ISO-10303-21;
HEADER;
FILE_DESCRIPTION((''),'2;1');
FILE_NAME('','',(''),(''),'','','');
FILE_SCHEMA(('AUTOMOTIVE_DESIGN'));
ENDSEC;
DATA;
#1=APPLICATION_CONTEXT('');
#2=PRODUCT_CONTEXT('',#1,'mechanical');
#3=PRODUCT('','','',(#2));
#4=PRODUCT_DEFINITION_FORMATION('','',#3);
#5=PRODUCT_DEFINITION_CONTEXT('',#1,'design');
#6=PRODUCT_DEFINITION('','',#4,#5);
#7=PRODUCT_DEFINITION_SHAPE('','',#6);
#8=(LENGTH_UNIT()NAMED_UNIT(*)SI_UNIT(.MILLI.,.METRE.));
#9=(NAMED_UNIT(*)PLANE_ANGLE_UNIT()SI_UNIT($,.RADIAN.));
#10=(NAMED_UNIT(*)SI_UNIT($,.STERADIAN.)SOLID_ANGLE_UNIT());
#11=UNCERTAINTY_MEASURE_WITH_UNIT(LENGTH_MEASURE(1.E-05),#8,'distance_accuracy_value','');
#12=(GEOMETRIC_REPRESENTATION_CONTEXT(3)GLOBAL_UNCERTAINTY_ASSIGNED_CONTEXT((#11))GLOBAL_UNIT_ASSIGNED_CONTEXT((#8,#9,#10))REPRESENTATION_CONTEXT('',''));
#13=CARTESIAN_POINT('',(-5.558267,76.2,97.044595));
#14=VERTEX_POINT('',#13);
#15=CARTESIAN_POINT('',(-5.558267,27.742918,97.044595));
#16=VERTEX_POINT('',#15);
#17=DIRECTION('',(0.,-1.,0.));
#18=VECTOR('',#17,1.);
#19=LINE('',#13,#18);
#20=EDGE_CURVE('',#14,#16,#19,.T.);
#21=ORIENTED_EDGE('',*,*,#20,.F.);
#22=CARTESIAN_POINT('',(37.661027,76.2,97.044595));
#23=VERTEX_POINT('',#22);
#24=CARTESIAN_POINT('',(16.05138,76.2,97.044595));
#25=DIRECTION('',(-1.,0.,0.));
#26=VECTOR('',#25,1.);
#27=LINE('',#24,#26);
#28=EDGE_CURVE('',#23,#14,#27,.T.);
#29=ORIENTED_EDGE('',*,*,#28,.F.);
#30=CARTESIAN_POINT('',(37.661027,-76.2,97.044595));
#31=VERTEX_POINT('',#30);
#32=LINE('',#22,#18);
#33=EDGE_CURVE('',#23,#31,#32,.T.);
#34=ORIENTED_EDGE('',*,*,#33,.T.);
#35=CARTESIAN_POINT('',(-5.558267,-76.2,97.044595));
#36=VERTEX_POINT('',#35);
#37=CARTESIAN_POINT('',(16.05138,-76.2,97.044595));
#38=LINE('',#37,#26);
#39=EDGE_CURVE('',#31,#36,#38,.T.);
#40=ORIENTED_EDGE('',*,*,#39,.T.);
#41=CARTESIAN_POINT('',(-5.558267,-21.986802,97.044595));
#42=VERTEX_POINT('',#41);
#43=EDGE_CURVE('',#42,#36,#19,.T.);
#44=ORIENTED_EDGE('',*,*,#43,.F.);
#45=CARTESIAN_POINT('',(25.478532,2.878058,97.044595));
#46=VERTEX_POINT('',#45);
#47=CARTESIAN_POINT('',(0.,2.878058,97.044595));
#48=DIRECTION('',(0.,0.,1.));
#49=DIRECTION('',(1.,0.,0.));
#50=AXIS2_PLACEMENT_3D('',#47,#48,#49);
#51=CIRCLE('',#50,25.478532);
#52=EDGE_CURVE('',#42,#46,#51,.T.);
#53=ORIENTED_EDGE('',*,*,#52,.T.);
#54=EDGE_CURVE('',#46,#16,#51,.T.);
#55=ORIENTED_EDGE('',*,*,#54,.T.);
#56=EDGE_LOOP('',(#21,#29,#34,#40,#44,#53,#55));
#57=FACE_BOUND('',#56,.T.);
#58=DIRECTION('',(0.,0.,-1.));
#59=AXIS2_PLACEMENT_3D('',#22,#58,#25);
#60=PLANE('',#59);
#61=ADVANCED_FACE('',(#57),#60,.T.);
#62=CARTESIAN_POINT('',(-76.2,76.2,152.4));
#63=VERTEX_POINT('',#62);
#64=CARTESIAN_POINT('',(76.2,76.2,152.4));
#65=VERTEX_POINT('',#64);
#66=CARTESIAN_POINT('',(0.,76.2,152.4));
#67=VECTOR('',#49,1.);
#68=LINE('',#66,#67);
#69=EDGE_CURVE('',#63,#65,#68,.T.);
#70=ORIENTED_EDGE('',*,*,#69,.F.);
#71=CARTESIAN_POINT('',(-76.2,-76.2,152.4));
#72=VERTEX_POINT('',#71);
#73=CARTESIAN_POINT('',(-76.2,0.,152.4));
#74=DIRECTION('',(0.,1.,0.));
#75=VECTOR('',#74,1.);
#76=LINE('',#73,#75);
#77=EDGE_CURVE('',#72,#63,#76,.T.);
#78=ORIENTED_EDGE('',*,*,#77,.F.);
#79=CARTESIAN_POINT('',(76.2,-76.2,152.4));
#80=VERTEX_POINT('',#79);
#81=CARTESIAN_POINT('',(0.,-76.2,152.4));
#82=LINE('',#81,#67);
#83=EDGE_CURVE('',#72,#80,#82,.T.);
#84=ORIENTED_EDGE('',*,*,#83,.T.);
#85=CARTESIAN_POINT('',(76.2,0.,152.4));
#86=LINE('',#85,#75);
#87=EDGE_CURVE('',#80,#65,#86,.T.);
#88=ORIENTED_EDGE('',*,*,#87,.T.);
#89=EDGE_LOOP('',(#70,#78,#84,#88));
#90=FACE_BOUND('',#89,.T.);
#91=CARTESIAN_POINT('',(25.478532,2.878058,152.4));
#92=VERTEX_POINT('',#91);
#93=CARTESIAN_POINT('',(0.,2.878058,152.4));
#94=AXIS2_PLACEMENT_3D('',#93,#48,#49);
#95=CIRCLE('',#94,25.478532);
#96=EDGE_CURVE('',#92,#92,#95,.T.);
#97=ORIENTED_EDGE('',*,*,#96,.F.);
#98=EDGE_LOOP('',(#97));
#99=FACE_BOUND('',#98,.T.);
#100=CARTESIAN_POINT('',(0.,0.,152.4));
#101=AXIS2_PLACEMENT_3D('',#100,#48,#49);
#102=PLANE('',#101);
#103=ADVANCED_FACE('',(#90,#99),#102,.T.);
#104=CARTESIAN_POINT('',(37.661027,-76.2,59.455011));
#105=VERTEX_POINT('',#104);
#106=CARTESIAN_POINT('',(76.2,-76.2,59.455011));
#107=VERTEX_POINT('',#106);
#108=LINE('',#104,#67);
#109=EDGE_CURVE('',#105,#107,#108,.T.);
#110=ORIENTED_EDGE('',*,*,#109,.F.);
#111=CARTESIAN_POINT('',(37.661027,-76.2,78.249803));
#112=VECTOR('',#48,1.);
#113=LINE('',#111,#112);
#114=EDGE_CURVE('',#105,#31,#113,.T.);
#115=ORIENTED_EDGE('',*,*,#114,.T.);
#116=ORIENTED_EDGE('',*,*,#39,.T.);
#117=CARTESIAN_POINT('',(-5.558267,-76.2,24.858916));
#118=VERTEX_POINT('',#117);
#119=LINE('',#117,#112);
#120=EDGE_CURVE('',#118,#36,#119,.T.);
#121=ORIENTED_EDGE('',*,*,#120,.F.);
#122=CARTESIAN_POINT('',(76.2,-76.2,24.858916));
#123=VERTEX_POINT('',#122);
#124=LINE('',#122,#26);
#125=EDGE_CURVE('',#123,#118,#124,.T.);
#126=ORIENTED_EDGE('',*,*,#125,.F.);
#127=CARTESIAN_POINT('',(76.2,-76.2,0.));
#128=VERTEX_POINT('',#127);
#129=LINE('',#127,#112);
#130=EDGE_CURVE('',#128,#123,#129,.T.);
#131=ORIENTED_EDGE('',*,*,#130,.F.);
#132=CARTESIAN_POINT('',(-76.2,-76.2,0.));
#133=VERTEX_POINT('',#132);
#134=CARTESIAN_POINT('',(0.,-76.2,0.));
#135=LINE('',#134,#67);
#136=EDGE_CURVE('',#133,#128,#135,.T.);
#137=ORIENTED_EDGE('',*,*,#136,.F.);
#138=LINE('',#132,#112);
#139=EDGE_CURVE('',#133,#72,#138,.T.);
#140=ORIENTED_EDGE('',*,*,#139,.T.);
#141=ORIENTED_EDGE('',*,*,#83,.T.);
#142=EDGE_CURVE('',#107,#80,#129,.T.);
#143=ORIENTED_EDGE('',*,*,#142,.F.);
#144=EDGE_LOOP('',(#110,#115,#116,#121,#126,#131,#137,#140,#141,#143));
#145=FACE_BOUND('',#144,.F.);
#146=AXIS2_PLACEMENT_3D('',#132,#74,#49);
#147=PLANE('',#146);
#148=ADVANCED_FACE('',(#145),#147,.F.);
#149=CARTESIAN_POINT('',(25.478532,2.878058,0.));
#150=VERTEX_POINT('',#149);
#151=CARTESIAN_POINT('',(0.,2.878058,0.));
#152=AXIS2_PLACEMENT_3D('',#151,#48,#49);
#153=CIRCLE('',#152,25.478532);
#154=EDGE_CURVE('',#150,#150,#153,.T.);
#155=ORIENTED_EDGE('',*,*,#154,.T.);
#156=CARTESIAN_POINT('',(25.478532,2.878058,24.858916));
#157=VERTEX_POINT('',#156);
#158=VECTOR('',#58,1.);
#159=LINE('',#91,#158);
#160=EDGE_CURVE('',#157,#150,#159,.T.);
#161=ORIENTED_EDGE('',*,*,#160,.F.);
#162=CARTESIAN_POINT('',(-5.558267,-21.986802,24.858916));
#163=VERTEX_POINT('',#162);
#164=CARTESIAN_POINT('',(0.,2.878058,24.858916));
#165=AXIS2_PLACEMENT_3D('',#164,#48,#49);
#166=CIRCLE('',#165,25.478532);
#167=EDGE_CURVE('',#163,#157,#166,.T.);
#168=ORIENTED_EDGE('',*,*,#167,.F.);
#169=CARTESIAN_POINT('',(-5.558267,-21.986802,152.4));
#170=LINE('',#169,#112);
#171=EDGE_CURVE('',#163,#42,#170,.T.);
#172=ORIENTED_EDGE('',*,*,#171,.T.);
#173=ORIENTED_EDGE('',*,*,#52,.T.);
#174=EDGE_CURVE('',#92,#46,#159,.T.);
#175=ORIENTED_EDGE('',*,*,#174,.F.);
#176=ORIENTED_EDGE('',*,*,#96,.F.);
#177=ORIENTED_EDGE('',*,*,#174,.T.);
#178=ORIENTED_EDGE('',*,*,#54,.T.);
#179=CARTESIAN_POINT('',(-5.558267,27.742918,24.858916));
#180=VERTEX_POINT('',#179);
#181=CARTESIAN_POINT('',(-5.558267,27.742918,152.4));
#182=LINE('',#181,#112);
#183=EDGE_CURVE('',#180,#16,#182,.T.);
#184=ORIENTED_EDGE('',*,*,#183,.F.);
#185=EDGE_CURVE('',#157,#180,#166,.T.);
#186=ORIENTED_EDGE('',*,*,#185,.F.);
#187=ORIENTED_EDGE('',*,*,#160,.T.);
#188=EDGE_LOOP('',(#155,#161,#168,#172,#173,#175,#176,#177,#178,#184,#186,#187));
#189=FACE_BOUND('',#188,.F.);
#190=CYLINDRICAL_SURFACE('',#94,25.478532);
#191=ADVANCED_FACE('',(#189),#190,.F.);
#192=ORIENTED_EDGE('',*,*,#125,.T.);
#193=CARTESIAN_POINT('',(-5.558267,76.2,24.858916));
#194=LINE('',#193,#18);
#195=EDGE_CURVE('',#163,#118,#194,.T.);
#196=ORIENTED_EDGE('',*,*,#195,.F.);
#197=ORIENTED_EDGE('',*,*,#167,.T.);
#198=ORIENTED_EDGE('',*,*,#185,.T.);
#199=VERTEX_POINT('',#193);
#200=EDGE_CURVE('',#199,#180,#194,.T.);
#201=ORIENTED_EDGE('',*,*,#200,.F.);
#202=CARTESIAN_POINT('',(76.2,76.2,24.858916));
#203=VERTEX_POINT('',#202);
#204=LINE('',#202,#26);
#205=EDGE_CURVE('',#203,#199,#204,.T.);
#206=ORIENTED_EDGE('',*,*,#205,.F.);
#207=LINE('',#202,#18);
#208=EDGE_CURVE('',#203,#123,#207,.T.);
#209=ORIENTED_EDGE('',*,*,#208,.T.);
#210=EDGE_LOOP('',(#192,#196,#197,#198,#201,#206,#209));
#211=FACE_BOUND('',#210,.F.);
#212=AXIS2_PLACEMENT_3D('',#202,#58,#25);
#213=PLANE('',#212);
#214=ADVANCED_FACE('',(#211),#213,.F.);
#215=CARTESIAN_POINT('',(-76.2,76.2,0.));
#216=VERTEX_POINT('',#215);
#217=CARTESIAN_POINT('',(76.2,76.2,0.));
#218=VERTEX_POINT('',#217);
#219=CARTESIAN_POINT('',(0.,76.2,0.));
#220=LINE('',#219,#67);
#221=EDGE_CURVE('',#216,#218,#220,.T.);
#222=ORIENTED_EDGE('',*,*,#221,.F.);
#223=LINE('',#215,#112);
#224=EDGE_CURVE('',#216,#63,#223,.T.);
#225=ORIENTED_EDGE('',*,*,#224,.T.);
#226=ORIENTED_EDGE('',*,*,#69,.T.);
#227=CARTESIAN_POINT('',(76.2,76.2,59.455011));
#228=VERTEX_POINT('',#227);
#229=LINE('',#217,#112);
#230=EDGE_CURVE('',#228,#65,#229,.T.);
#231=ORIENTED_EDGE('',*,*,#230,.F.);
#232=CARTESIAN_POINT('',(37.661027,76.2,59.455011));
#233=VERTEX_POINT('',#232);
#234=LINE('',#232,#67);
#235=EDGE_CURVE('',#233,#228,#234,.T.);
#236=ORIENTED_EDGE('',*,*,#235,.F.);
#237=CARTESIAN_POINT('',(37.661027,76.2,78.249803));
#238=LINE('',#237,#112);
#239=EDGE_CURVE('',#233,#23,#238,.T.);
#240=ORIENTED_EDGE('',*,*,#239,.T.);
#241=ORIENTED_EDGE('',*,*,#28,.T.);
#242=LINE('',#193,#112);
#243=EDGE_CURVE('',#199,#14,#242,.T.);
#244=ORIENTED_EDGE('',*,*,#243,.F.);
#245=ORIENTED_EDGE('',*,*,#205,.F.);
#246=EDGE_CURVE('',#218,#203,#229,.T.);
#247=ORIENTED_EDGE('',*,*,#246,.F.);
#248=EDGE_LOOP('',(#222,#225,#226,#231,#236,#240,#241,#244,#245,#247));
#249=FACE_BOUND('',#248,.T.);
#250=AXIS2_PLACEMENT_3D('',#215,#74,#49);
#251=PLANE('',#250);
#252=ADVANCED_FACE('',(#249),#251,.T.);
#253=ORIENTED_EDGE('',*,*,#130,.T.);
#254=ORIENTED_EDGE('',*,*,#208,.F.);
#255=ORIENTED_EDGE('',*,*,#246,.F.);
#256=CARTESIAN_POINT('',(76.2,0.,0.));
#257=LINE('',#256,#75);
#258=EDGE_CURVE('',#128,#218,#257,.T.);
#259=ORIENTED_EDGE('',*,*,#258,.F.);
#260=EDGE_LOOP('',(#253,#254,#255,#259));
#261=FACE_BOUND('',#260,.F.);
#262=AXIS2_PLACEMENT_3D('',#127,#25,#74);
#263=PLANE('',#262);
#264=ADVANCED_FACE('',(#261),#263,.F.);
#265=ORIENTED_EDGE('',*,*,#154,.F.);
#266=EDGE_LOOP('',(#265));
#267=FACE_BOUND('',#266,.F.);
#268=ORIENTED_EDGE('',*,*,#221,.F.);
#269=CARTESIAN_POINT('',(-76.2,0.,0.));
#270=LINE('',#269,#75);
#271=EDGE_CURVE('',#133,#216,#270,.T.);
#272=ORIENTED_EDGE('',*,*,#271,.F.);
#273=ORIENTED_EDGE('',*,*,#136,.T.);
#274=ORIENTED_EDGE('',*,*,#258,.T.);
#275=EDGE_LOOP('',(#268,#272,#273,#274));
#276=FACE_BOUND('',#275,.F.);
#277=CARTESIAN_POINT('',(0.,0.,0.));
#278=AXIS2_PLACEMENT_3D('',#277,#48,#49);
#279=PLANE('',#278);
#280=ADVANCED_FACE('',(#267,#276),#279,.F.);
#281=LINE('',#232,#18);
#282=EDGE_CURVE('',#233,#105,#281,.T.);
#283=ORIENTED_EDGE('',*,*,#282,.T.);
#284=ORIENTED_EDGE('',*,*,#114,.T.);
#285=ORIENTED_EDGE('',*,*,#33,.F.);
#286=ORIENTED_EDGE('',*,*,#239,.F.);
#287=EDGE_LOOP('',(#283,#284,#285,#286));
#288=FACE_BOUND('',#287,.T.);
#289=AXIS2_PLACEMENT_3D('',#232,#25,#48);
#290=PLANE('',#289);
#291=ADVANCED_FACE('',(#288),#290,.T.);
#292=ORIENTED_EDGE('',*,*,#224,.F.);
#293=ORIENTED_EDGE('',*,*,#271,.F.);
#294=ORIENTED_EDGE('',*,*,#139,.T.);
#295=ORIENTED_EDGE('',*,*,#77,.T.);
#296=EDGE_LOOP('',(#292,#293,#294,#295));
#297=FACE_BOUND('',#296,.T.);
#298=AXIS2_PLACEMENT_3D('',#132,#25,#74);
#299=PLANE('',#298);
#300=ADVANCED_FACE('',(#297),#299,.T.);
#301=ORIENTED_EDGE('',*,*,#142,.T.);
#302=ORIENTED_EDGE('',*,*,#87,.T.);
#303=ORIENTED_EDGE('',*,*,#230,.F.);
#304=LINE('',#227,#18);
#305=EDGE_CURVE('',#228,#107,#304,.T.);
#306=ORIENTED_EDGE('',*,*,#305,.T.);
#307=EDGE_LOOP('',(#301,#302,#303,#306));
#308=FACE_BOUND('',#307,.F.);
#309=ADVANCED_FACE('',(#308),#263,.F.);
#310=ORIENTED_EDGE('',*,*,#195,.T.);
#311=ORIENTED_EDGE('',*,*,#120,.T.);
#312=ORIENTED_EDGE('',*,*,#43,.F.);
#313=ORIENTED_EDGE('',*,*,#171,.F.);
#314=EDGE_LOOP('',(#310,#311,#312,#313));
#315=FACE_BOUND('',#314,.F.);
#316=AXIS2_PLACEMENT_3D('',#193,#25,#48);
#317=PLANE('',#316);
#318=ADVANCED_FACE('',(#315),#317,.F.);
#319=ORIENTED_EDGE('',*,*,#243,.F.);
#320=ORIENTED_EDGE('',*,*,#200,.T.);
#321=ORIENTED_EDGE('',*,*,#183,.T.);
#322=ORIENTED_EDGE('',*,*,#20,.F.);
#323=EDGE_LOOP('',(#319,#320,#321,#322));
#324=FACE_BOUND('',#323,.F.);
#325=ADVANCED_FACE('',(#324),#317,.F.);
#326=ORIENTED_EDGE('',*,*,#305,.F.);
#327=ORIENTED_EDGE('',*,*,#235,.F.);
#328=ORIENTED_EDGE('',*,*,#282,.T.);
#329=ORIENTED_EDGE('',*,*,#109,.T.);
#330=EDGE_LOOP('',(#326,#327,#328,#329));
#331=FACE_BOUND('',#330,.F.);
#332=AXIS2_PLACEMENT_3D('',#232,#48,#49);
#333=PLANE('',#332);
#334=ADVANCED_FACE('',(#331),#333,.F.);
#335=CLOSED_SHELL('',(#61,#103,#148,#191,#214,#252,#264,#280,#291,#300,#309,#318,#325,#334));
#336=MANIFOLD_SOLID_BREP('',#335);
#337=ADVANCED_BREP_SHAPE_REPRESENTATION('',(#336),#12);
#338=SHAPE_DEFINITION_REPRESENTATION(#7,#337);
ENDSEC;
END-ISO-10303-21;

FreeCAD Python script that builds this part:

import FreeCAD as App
import Part
import Sketcher

V = App.Vector
Q = App.Units.Quantity


def add_polygon(sketch, points):
    """Adds a closed chain of lines whose ends are joined by coincident constraints."""
    first, n = sketch.GeometryCount, len(points)
    for a, b in zip(points, points[1:] + points[:1]):
        sketch.addGeometry(Part.LineSegment(App.Vector(*a, 0), App.Vector(*b, 0)), False)
    for i in range(n):
        sketch.addConstraint(Sketcher.Constraint("Coincident", first + i, 2, first + (i + 1) % n, 1))

doc = App.newDocument("Part")
params = doc.addObject("Spreadsheet::Sheet", "Params")
for row, (alias, value) in enumerate([
    ("sketch1_width", "6 in"),
    ("pad1_length", "6 in"),
    ("pocket1_length", "6 in"),
    ("pocket2_length", "6 in"),
], start=1):
    params.set(f"A{row}", alias)
    params.set(f"B{row}", "=" + value)
    params.setAlias(f"B{row}", alias)

body = doc.addObject("PartDesign::Body", "Body")

sketch1 = doc.addObject("Sketcher::SketchObject", "Sketch")
body.addObject(sketch1)
sketch1.AttachmentSupport = (doc.XY_Plane, [""])
sketch1.MapMode = "FlatFace"
add_polygon(sketch1, [(-76, 76), (-76, -76), (76, -76), (76, 76)])
sketch1.addConstraint([
    Sketcher.Constraint("Vertical", 0),
    Sketcher.Constraint("Horizontal", 1),
    Sketcher.Constraint("Vertical", 2),
    Sketcher.Constraint("Horizontal", 3),
    Sketcher.Constraint("Symmetric", 0, 2, 2, 2, -1, 1),
    Sketcher.Constraint("Equal", 3, 0),
    Sketcher.Constraint("DistanceX", 1, 1, 1, 2, Q("6 in")),
])
sketch1.setExpression("Constraints[10]", "Params.sketch1_width")
pad1 = doc.addObject("PartDesign::Pad", "Pad")
body.addObject(pad1)
pad1.Profile = sketch1
pad1.setExpression("Length", "Params.pad1_length")

sketch2 = doc.addObject("Sketcher::SketchObject", "Sketch001")
body.addObject(sketch2)
sketch2.AttachmentSupport = (doc.XY_Plane, [""])
sketch2.MapMode = "FlatFace"
sketch2.AttachmentOffset = App.Placement(V(0, 0, 6 * 25.4), App.Rotation())
sketch2.addGeometry(Part.Circle(V(0, 3, 0), V(0, 0, 1), 25), False)
sketch2.addConstraint([
    Sketcher.Constraint("PointOnObject", 0, 3, -2),
    Sketcher.Constraint("Diameter", 0, Q("50.957064 mm")),
    Sketcher.Constraint("DistanceY", -1, 1, 0, 3, Q("2.878058 mm")),
])
pocket1 = doc.addObject("PartDesign::Pocket", "Pocket")
body.addObject(pocket1)
pocket1.Profile = sketch2
pocket1.setExpression("Length", "Params.pocket1_length")

sketch3 = doc.addObject("Sketcher::SketchObject", "Sketch002")
body.addObject(sketch3)
sketch3.AttachmentSupport = (doc.XZ_Plane, [""])
sketch3.MapMode = "FlatFace"
sketch3.AttachmentOffset = App.Placement(V(0, 0, -3 * 25.4), App.Rotation())
add_polygon(sketch3, [(38, 97), (38, 59), (76, 59), (76, 25), (-6, 25), (-6, 97)])
sketch3.addConstraint([
    Sketcher.Constraint("Vertical", 0),
    Sketcher.Constraint("Horizontal", 1),
    Sketcher.Constraint("Vertical", 2),
    Sketcher.Constraint("Horizontal", 3),
    Sketcher.Constraint("Vertical", 4),
    Sketcher.Constraint("Horizontal", 5),
    Sketcher.Constraint("DistanceX", -1, 1, 1, 2, Q("3 in")),
    Sketcher.Constraint("DistanceY", 4, 1, 4, 2, Q("72.185679 mm")),
    Sketcher.Constraint("DistanceX", 1, 1, 1, 2, Q("38.538973 mm")),
    Sketcher.Constraint("DistanceX", 3, 2, 3, 1, Q("81.758267 mm")),
    Sketcher.Constraint("DistanceY", 0, 2, 0, 1, Q("37.589584 mm")),
    Sketcher.Constraint("DistanceY", -1, 1, 0, 2, Q("59.455011 mm")),
])
pocket2 = doc.addObject("PartDesign::Pocket", "Pocket001")
body.addObject(pocket2)
pocket2.Profile = sketch3
pocket2.setExpression("Length", "Params.pocket2_length")
pocket2.Reversed = True

doc.recompute()
